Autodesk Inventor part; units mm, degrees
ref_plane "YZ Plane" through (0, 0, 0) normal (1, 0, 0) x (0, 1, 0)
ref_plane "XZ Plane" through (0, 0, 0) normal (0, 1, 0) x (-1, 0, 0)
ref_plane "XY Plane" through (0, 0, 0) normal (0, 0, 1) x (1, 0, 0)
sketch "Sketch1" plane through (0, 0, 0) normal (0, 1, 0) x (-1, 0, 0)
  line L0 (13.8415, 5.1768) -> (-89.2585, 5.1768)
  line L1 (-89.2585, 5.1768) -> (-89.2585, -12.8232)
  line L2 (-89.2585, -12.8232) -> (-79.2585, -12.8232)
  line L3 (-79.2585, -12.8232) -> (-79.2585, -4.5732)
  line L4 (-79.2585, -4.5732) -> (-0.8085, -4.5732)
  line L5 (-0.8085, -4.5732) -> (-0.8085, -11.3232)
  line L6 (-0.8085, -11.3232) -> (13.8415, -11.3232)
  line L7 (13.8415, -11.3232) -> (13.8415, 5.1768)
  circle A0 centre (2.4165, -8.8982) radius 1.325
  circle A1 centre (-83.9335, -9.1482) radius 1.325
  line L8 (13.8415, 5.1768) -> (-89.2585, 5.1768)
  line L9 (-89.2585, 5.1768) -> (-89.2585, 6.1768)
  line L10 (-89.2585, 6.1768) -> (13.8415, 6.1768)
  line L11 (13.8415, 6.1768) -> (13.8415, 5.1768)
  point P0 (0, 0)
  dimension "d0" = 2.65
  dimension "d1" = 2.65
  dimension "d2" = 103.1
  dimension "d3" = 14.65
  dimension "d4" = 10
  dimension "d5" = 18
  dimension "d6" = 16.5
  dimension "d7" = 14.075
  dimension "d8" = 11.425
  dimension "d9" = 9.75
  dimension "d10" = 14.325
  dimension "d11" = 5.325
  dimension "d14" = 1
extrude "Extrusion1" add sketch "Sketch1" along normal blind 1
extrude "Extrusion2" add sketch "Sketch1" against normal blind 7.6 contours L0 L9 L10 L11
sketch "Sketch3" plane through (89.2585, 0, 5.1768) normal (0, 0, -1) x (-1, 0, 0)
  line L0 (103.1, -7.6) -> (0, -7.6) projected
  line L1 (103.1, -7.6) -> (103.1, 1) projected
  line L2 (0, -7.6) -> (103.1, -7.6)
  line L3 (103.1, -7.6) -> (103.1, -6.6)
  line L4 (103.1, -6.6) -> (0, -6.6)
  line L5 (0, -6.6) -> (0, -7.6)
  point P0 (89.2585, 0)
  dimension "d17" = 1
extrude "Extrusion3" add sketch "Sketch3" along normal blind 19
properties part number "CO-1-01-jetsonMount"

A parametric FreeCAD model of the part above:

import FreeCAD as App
import Part
import Sketcher
from FreeCAD import Vector
Q = App.Units.Quantity

doc = App.newDocument("Part")
params = doc.addObject("Spreadsheet::Sheet", "Params")
for row, (alias, value) in enumerate([
    ("sketch1_diameter", "2.65 mm"),
    ("sketch1_width", "10 mm"),
    ("sketch1_width2", "103.1 mm"),
    ("sketch1_width3", "14.65 mm"),
    ("sketch1_height", "19 mm"),
    ("pad1_length", "1 mm"),
    ("sketch2_height", "1 mm"),
    ("sketch2_width", "103.1 mm"),
    ("pad2_length", "7.6 mm"),
    ("sketch3_height", "1 mm"),
    ("sketch3_width", "103.1 mm"),
    ("pad3_length", "19 mm"),
], start=1):
    params.set(f"A{row}", alias)
    params.set(f"B{row}", "=" + value)
    params.setAlias(f"B{row}", alias)

body = doc.addObject("PartDesign::Body", "Body")

# Sketch on XZ plane
sketch1 = body.newObject("Sketcher::SketchObject", "Sketch")
sketch1.AttachmentSupport = (doc.getObject("XZ_Plane"), [""])
sketch1.MapMode = "FlatFace"
sketch1.addGeometry(Part.LineSegment(Vector(-13.8, -11.3, 0), Vector(-13.8, 6.2, 0)), False)
sketch1.addGeometry(Part.LineSegment(Vector(-13.8, 6.2, 0), Vector(89.3, 6.2, 0)), False)
sketch1.addGeometry(Part.LineSegment(Vector(89.3, 6.2, 0), Vector(89.3, -12.8, 0)), False)
sketch1.addGeometry(Part.LineSegment(Vector(89.3, -12.8, 0), Vector(79.3, -12.8, 0)), False)
sketch1.addGeometry(Part.LineSegment(Vector(79.3, -12.8, 0), Vector(79.3, -4.6, 0)), False)
sketch1.addGeometry(Part.LineSegment(Vector(79.3, -4.6, 0), Vector(0.8, -4.6, 0)), False)
sketch1.addGeometry(Part.LineSegment(Vector(0.8, -4.6, 0), Vector(0.8, -11.3, 0)), False)
sketch1.addGeometry(Part.LineSegment(Vector(0.8, -11.3, 0), Vector(-13.8, -11.3, 0)), False)
sketch1.addGeometry(Part.Circle(Vector(83.9, -9.1, 0), Vector(0, 0, 1), 1.3), False)
sketch1.addGeometry(Part.Circle(Vector(-2.4, -8.9, 0), Vector(0, 0, 1), 1.3), False)
sketch1.addConstraint(Sketcher.Constraint("Coincident", 0, 2, 1, 1))
sketch1.addConstraint(Sketcher.Constraint("Coincident", 1, 2, 2, 1))
sketch1.addConstraint(Sketcher.Constraint("Coincident", 2, 2, 3, 1))
sketch1.addConstraint(Sketcher.Constraint("Coincident", 3, 2, 4, 1))
sketch1.addConstraint(Sketcher.Constraint("Coincident", 4, 2, 5, 1))
sketch1.addConstraint(Sketcher.Constraint("Coincident", 5, 2, 6, 1))
sketch1.addConstraint(Sketcher.Constraint("Coincident", 6, 2, 7, 1))
sketch1.addConstraint(Sketcher.Constraint("Coincident", 7, 2, 0, 1))
sketch1.addConstraint(Sketcher.Constraint("Vertical", 0))
sketch1.addConstraint(Sketcher.Constraint("Horizontal", 1))
sketch1.addConstraint(Sketcher.Constraint("Vertical", 2))
sketch1.addConstraint(Sketcher.Constraint("Horizontal", 3))
sketch1.addConstraint(Sketcher.Constraint("Vertical", 4))
sketch1.addConstraint(Sketcher.Constraint("Horizontal", 5))
sketch1.addConstraint(Sketcher.Constraint("Vertical", 6))
sketch1.addConstraint(Sketcher.Constraint("Horizontal", 7))
sketch1.addConstraint(Sketcher.Constraint("Equal", 8, 9))
sketch1.addConstraint(Sketcher.Constraint("Diameter", 8, Q("2.65 mm")))
sketch1.addConstraint(Sketcher.Constraint("DistanceX", 3, 2, 3, 1, Q("10 mm")))
sketch1.addConstraint(Sketcher.Constraint("DistanceX", 1, 1, 1, 2, Q("103.1 mm")))
sketch1.addConstraint(Sketcher.Constraint("DistanceX", 7, 2, 7, 1, Q("14.65 mm")))
sketch1.addConstraint(Sketcher.Constraint("DistanceY", 2, 2, 2, 1, Q("19 mm")))
sketch1.addConstraint(Sketcher.Constraint("DistanceY", 0, 1, 0, 2, Q("17.5 mm")))
sketch1.addConstraint(Sketcher.Constraint("DistanceX", 0, 2, 9, 3, Q("11.425 mm")))
sketch1.addConstraint(Sketcher.Constraint("DistanceX", 8, 3, 1, 2, Q("5.325 mm")))
sketch1.addConstraint(Sketcher.Constraint("DistanceY", 4, 1, 4, 2, Q("8.25 mm")))
sketch1.addConstraint(Sketcher.Constraint("DistanceY", 8, 3, 9, 3, Q("0.25 mm")))
sketch1.addConstraint(Sketcher.Constraint("DistanceY", 9, 3, 0, 2, Q("15.075 mm")))
sketch1.addConstraint(Sketcher.Constraint("DistanceX", -1, 1, 8, 3, Q("83.9335 mm")))
sketch1.addConstraint(Sketcher.Constraint("DistanceY", 8, 3, -1, 1, Q("9.1482 mm")))
sketch1.setExpression("Constraints[17]", "Params.sketch1_diameter")
sketch1.setExpression("Constraints[18]", "Params.sketch1_width")
sketch1.setExpression("Constraints[19]", "Params.sketch1_width2")
sketch1.setExpression("Constraints[20]", "Params.sketch1_width3")
sketch1.setExpression("Constraints[21]", "Params.sketch1_height")
pad1 = body.newObject("PartDesign::Pad", "Pad")
pad1.Profile = sketch1
pad1.setExpression("Length", "Params.pad1_length")
pad1.Reversed = True

# Sketch on XZ plane
sketch2 = body.newObject("Sketcher::SketchObject", "Sketch001")
sketch2.AttachmentSupport = (doc.getObject("XZ_Plane"), [""])
sketch2.MapMode = "FlatFace"
sketch2.addGeometry(Part.LineSegment(Vector(89.3, 5.2, 0), Vector(-13.8, 5.2, 0)), False)
sketch2.addGeometry(Part.LineSegment(Vector(-13.8, 5.2, 0), Vector(-13.8, 6.2, 0)), False)
sketch2.addGeometry(Part.LineSegment(Vector(-13.8, 6.2, 0), Vector(89.3, 6.2, 0)), False)
sketch2.addGeometry(Part.LineSegment(Vector(89.3, 6.2, 0), Vector(89.3, 5.2, 0)), False)
sketch2.addConstraint(Sketcher.Constraint("Coincident", 0, 2, 1, 1))
sketch2.addConstraint(Sketcher.Constraint("Coincident", 1, 2, 2, 1))
sketch2.addConstraint(Sketcher.Constraint("Coincident", 2, 2, 3, 1))
sketch2.addConstraint(Sketcher.Constraint("Coincident", 3, 2, 0, 1))
sketch2.addConstraint(Sketcher.Constraint("Horizontal", 0))
sketch2.addConstraint(Sketcher.Constraint("Vertical", 1))
sketch2.addConstraint(Sketcher.Constraint("Horizontal", 2))
sketch2.addConstraint(Sketcher.Constraint("Vertical", 3))
sketch2.addConstraint(Sketcher.Constraint("DistanceY", 1, 1, 1, 2, Q("1 mm")))
sketch2.addConstraint(Sketcher.Constraint("DistanceX", 0, 2, 0, 1, Q("103.1 mm")))
sketch2.addConstraint(Sketcher.Constraint("DistanceX", 0, 2, -1, 1, Q("13.8415 mm")))
sketch2.addConstraint(Sketcher.Constraint("DistanceY", -1, 1, 0, 2, Q("5.1768 mm")))
sketch2.setExpression("Constraints[8]", "Params.sketch2_height")
sketch2.setExpression("Constraints[9]", "Params.sketch2_width")
pad2 = body.newObject("PartDesign::Pad", "Pad001")
pad2.Profile = sketch2
pad2.setExpression("Length", "Params.pad2_length")

# Sketch on XY plane
sketch3 = body.newObject("Sketcher::SketchObject", "Sketch002")
sketch3.AttachmentSupport = (doc.getObject("XY_Plane"), [""])
sketch3.MapMode = "FlatFace"
sketch3.AttachmentOffset = App.Placement(Vector(0, 0, 5.1768), App.Rotation())
sketch3.addGeometry(Part.LineSegment(Vector(89.3, -7.6, 0), Vector(-13.8, -7.6, 0)), False)
sketch3.addGeometry(Part.LineSegment(Vector(-13.8, -7.6, 0), Vector(-13.8, -6.6, 0)), False)
sketch3.addGeometry(Part.LineSegment(Vector(-13.8, -6.6, 0), Vector(89.3, -6.6, 0)), False)
sketch3.addGeometry(Part.LineSegment(Vector(89.3, -6.6, 0), Vector(89.3, -7.6, 0)), False)
sketch3.addConstraint(Sketcher.Constraint("Coincident", 0, 2, 1, 1))
sketch3.addConstraint(Sketcher.Constraint("Coincident", 1, 2, 2, 1))
sketch3.addConstraint(Sketcher.Constraint("Coincident", 2, 2, 3, 1))
sketch3.addConstraint(Sketcher.Constraint("Coincident", 3, 2, 0, 1))
sketch3.addConstraint(Sketcher.Constraint("Horizontal", 0))
sketch3.addConstraint(Sketcher.Constraint("Vertical", 1))
sketch3.addConstraint(Sketcher.Constraint("Horizontal", 2))
sketch3.addConstraint(Sketcher.Constraint("Vertical", 3))
sketch3.addConstraint(Sketcher.Constraint("DistanceY", 1, 1, 1, 2, Q("1 mm")))
sketch3.addConstraint(Sketcher.Constraint("DistanceX", 0, 2, 0, 1, Q("103.1 mm")))
sketch3.addConstraint(Sketcher.Constraint("DistanceY", 0, 2, -1, 1, Q("7.6 mm")))
sketch3.addConstraint(Sketcher.Constraint("DistanceX", 0, 2, -1, 1, Q("13.8415 mm")))
sketch3.setExpression("Constraints[8]", "Params.sketch3_height")
sketch3.setExpression("Constraints[9]", "Params.sketch3_width")
pad3 = body.newObject("PartDesign::Pad", "Pad002")
pad3.Profile = sketch3
pad3.setExpression("Length", "Params.pad3_length")
pad3.Reversed = True

doc.recompute()
